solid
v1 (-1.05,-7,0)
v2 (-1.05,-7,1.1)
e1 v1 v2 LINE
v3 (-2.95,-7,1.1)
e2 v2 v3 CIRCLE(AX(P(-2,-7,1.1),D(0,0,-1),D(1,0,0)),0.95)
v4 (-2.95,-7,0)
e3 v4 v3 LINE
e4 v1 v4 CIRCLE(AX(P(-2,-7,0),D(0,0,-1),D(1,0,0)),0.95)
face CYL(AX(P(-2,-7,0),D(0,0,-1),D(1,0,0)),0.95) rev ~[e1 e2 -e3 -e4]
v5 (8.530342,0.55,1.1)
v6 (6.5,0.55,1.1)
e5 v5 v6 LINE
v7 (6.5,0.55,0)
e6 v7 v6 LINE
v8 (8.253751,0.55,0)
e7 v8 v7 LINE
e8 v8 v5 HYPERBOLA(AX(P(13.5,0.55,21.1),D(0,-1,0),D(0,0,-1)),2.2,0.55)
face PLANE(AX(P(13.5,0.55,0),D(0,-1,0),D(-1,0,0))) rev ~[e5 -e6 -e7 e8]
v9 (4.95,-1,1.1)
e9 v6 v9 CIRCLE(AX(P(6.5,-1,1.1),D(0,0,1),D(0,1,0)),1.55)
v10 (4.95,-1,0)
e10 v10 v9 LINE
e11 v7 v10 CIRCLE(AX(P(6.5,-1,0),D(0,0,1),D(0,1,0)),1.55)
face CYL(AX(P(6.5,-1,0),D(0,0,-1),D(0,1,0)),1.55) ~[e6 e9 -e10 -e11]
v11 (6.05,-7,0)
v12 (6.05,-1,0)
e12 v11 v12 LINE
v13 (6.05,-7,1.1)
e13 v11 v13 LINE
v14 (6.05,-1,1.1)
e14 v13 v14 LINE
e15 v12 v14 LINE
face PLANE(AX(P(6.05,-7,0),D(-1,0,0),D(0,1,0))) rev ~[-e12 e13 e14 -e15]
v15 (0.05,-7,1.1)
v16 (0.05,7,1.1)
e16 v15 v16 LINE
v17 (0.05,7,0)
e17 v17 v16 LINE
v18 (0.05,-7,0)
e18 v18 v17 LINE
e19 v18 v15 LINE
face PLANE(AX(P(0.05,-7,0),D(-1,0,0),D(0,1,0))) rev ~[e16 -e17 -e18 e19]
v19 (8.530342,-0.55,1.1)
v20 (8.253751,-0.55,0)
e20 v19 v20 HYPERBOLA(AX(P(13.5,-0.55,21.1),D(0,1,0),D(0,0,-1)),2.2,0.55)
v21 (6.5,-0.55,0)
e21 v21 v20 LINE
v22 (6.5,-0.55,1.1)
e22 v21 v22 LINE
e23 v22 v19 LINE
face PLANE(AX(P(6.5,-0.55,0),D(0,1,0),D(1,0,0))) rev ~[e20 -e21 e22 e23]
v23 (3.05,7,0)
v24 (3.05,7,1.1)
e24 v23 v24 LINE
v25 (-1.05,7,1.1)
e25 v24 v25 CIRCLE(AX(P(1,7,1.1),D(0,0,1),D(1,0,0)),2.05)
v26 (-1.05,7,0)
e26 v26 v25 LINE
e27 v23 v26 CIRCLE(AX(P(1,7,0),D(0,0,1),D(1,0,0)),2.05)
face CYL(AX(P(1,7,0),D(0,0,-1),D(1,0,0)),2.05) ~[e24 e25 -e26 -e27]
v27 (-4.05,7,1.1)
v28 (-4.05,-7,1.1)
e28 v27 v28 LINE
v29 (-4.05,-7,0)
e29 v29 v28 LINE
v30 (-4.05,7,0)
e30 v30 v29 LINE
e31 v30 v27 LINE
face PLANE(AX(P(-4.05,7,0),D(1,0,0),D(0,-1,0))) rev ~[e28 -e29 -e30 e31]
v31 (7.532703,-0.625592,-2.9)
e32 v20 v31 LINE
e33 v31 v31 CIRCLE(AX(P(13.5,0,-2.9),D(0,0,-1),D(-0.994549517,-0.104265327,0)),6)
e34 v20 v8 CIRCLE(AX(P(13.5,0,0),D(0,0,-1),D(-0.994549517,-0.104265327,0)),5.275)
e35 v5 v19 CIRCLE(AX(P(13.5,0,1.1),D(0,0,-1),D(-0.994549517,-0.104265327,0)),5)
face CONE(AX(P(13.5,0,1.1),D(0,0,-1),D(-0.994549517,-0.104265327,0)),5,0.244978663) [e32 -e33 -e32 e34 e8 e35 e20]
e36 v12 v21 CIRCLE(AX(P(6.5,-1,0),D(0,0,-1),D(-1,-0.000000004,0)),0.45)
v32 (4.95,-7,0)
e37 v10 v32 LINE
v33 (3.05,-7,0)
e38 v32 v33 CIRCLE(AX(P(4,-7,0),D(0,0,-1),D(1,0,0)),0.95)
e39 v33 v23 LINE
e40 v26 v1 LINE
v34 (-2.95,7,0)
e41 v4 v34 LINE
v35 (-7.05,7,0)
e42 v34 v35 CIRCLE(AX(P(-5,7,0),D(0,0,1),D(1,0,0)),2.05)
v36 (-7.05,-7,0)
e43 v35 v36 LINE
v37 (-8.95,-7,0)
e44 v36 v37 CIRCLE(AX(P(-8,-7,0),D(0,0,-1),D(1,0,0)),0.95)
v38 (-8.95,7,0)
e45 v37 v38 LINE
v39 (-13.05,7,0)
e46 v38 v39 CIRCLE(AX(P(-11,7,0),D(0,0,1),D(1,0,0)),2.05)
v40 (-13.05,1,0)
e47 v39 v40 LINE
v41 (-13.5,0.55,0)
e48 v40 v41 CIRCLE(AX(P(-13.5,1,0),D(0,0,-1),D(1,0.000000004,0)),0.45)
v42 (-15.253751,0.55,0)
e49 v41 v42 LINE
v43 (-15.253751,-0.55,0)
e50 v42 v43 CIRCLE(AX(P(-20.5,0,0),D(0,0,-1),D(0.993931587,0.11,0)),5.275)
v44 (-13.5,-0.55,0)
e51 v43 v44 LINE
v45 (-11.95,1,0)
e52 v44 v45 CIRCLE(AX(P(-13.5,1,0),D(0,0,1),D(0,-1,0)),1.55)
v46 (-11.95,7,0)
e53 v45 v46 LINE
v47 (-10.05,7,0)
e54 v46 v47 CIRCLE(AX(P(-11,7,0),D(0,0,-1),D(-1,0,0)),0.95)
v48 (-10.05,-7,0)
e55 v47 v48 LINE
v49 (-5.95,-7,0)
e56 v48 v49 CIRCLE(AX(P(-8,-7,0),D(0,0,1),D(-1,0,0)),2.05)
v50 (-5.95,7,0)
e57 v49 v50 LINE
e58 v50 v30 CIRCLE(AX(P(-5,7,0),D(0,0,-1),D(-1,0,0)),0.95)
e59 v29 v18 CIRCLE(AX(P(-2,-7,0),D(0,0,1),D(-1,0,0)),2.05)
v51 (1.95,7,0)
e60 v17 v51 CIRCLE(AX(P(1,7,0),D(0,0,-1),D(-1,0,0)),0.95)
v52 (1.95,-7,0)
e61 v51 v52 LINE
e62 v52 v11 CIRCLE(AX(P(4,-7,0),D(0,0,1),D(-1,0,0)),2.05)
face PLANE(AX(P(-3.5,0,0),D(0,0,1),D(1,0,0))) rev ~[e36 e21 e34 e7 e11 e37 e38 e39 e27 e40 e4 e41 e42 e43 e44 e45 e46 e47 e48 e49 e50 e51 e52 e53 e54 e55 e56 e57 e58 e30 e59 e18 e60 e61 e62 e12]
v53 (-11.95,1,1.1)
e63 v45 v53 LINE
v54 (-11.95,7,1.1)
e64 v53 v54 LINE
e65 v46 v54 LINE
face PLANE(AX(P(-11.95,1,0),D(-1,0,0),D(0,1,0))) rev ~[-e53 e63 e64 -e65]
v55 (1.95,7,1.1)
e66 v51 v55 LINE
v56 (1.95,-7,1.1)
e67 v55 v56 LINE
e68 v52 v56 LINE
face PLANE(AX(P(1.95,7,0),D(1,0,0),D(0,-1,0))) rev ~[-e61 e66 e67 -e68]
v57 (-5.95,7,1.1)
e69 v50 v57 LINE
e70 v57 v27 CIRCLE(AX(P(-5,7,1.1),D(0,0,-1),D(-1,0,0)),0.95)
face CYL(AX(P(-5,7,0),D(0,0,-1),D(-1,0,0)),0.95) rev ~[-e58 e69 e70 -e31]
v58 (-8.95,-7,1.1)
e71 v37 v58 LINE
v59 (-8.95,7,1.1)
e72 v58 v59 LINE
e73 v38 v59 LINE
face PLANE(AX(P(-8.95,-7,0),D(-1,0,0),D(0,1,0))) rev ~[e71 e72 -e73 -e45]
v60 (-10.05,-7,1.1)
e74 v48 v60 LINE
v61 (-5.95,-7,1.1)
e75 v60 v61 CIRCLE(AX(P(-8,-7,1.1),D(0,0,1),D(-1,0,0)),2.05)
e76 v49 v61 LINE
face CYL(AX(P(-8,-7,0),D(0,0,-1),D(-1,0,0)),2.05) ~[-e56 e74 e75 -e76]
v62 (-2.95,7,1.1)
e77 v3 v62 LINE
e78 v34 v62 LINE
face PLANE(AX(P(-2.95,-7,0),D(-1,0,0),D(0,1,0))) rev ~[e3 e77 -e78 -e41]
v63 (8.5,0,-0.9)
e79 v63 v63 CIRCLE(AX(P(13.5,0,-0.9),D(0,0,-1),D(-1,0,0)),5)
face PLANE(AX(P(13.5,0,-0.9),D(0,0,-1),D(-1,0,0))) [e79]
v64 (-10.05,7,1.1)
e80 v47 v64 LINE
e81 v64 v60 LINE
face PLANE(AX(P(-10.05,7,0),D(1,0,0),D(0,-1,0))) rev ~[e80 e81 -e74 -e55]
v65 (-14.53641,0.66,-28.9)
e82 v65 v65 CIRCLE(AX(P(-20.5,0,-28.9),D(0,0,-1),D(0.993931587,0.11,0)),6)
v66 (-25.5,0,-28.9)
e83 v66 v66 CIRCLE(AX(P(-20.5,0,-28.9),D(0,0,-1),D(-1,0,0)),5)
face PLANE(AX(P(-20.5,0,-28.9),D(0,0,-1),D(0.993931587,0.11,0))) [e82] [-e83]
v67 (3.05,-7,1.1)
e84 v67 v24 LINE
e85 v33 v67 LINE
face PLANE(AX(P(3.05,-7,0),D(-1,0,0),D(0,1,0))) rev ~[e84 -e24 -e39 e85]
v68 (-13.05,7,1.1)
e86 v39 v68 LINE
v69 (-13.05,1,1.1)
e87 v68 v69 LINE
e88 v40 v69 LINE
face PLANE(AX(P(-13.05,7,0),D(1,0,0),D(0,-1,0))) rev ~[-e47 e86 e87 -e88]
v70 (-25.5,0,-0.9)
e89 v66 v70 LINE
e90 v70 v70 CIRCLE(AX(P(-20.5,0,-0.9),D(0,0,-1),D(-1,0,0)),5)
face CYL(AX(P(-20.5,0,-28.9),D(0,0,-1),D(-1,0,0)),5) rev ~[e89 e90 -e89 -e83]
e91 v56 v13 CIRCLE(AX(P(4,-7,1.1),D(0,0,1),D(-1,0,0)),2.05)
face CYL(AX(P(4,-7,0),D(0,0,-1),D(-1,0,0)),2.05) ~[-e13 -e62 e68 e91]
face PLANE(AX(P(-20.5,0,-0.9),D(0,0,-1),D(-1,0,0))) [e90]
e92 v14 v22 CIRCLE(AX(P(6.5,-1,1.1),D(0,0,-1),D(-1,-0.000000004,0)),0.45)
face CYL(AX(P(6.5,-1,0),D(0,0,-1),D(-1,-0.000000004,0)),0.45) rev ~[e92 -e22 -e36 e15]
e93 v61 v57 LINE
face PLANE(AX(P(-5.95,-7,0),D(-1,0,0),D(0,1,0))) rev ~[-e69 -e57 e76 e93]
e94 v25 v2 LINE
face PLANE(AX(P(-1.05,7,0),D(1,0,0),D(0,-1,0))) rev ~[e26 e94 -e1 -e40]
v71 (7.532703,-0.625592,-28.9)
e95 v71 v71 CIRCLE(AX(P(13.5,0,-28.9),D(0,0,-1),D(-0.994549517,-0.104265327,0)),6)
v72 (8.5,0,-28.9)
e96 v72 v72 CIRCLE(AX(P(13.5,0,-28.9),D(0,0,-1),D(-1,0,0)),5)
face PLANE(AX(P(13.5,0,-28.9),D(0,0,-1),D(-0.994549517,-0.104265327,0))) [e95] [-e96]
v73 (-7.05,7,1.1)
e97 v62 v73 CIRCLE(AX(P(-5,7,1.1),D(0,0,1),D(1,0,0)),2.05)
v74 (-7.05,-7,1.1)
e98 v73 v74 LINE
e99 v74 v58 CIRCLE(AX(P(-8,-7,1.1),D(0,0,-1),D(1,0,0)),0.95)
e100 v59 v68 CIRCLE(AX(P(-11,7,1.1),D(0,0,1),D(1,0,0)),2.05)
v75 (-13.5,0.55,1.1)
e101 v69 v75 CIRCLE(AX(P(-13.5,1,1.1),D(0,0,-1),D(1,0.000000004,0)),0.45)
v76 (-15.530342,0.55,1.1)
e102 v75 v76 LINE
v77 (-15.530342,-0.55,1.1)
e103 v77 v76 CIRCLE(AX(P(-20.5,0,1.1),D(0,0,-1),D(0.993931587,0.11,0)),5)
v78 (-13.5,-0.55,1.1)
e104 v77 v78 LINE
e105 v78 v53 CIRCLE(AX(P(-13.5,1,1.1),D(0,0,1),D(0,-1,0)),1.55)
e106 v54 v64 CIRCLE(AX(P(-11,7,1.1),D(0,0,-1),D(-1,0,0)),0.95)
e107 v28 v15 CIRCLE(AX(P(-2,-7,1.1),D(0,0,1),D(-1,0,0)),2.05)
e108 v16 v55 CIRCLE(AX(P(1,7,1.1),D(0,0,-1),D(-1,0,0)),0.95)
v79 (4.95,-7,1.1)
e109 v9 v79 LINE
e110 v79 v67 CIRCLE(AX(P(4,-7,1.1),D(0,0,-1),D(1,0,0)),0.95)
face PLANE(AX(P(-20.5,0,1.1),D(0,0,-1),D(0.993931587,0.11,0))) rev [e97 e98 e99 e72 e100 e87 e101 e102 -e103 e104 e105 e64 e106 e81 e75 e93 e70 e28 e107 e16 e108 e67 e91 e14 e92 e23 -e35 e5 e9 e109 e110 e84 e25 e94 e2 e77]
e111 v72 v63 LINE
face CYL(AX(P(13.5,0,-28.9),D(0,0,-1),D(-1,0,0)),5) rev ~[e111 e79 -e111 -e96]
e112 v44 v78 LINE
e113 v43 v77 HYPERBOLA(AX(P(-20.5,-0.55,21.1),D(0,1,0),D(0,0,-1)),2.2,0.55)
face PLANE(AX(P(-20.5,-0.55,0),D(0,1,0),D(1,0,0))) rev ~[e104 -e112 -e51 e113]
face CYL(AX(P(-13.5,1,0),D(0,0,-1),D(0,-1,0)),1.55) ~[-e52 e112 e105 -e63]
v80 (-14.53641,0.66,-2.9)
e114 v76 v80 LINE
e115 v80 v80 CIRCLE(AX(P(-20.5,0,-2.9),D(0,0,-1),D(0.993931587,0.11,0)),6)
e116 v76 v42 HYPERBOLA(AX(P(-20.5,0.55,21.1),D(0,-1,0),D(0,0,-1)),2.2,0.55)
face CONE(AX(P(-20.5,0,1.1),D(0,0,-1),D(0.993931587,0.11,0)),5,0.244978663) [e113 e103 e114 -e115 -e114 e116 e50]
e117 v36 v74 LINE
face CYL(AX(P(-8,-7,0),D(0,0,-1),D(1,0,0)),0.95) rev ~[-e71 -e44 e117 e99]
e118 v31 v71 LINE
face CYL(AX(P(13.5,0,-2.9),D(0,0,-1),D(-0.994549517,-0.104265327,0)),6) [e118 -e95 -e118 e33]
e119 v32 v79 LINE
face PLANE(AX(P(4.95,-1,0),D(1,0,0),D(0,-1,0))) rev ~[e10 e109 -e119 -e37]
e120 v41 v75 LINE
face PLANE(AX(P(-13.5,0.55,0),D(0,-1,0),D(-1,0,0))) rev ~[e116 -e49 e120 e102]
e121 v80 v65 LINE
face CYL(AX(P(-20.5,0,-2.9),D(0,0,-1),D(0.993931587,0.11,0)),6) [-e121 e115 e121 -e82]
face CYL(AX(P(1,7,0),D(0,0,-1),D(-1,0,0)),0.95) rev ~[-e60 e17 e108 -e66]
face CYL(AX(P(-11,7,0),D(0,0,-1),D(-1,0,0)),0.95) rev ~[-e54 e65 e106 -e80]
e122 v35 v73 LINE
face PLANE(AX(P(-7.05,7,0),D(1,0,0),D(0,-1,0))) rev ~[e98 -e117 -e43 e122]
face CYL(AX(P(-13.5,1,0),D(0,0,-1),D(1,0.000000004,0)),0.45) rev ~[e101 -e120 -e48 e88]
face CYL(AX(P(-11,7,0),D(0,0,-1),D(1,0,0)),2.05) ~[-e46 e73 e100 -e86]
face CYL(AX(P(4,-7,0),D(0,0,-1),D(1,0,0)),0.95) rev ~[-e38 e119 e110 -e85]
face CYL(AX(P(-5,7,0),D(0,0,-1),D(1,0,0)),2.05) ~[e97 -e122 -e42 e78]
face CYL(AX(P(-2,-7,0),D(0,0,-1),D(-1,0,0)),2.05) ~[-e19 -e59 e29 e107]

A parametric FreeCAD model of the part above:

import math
import FreeCAD as App
import Part
import Sketcher

V = App.Vector


def add_polygon(sketch, points):
    """Adds a closed chain of lines whose ends are joined by coincident constraints."""
    first, n = sketch.GeometryCount, len(points)
    for a, b in zip(points, points[1:] + points[:1]):
        sketch.addGeometry(Part.LineSegment(App.Vector(*a, 0), App.Vector(*b, 0)), False)
    for i in range(n):
        sketch.addConstraint(Sketcher.Constraint("Coincident", first + i, 2, first + (i + 1) % n, 1))

doc = App.newDocument("Part")
body = doc.addObject("PartDesign::Body", "Body")

sketch1 = body.newObject("Sketcher::SketchObject", "Sketch")
sketch1.AttachmentSupport = (doc.getObject("XY_Plane"), [""])
sketch1.MapMode = "FlatFace"
sketch1.addGeometry([
    Part.LineSegment(V(-20.5, -0.55, 0), V(-13.5, -0.55, 0)),
    Part.ArcOfCircle(Part.Circle(V(-13.5, 1, 0), V(0, 0, 1), 1.55), math.radians(-90), math.radians(0)),
    Part.LineSegment(V(-11.95, 1, 0), V(-11.95, 7, 0)),
    Part.ArcOfCircle(Part.Circle(V(-11, 7, 0), V(0, 0, 1), 0.95), math.radians(0), math.radians(180)),
    Part.LineSegment(V(-10.05, 7, 0), V(-10.05, -7, 0)),
    Part.ArcOfCircle(Part.Circle(V(-8, -7, 0), V(0, 0, 1), 2.05), math.radians(180), math.radians(360)),
    Part.LineSegment(V(-5.95, -7, 0), V(-5.95, 7, 0)),
    Part.ArcOfCircle(Part.Circle(V(-5, 7, 0), V(0, 0, 1), 0.95), math.radians(0), math.radians(180)),
    Part.LineSegment(V(-4.05, 7, 0), V(-4.05, -7, 0)),
    Part.ArcOfCircle(Part.Circle(V(-2, -7, 0), V(0, 0, 1), 2.05), math.radians(180), math.radians(360)),
    Part.LineSegment(V(0.05, -7, 0), V(0.05, 7, 0)),
    Part.ArcOfCircle(Part.Circle(V(1, 7, 0), V(0, 0, 1), 0.95), math.radians(0), math.radians(180)),
    Part.LineSegment(V(1.95, 7, 0), V(1.95, -7, 0)),
    Part.ArcOfCircle(Part.Circle(V(4, -7, 0), V(0, 0, 1), 2.05), math.radians(180), math.radians(360)),
    Part.LineSegment(V(6.05, -7, 0), V(6.05, -1, 0)),
    Part.ArcOfCircle(Part.Circle(V(6.5, -1, 0), V(0, 0, 1), 0.45), math.radians(90), math.radians(180)),
    Part.LineSegment(V(6.5, -0.55, 0), V(13.5, -0.55, 0)),
    Part.ArcOfCircle(Part.Circle(V(13.5, 0, 0), V(0, 0, 1), 0.55), math.radians(-90), math.radians(90)),
    Part.LineSegment(V(13.5, 0.55, 0), V(6.5, 0.55, 0)),
    Part.ArcOfCircle(Part.Circle(V(6.5, -1, 0), V(0, 0, 1), 1.55), math.radians(90), math.radians(180)),
    Part.LineSegment(V(4.95, -1, 0), V(4.95, -7, 0)),
    Part.ArcOfCircle(Part.Circle(V(4, -7, 0), V(0, 0, 1), 0.95), math.radians(180), math.radians(360)),
    Part.LineSegment(V(3.05, -7, 0), V(3.05, 7, 0)),
    Part.ArcOfCircle(Part.Circle(V(1, 7, 0), V(0, 0, 1), 2.05), math.radians(0), math.radians(180)),
    Part.LineSegment(V(-1.05, 7, 0), V(-1.05, -7, 0)),
    Part.ArcOfCircle(Part.Circle(V(-2, -7, 0), V(0, 0, 1), 0.95), math.radians(180), math.radians(360)),
    Part.LineSegment(V(-2.95, -7, 0), V(-2.95, 7, 0)),
    Part.ArcOfCircle(Part.Circle(V(-5, 7, 0), V(0, 0, 1), 2.05), math.radians(0), math.radians(180)),
    Part.LineSegment(V(-7.05, 7, 0), V(-7.05, -7, 0)),
    Part.ArcOfCircle(Part.Circle(V(-8, -7, 0), V(0, 0, 1), 0.95), math.radians(180), math.radians(360)),
    Part.LineSegment(V(-8.95, -7, 0), V(-8.95, 7, 0)),
    Part.ArcOfCircle(Part.Circle(V(-11, 7, 0), V(0, 0, 1), 2.05), math.radians(0), math.radians(180)),
    Part.LineSegment(V(-13.05, 7, 0), V(-13.05, 1, 0)),
    Part.ArcOfCircle(Part.Circle(V(-13.5, 1, 0), V(0, 0, 1), 0.45), math.radians(-90), math.radians(0)),
    Part.LineSegment(V(-13.5, 0.55, 0), V(-20.5, 0.55, 0)),
    Part.ArcOfCircle(Part.Circle(V(-20.5, 0, 0), V(0, 0, 1), 0.55), math.radians(90), math.radians(270)),
], False)
sketch1.addConstraint([
    Sketcher.Constraint("Tangent", 0, 2, 1, 1),
    Sketcher.Constraint("Tangent", 1, 2, 2, 1),
    Sketcher.Constraint("Tangent", 2, 2, 3, 2),
    Sketcher.Constraint("Tangent", 3, 1, 4, 1),
    Sketcher.Constraint("Tangent", 4, 2, 5, 1),
    Sketcher.Constraint("Tangent", 5, 2, 6, 1),
    Sketcher.Constraint("Tangent", 6, 2, 7, 2),
    Sketcher.Constraint("Tangent", 7, 1, 8, 1),
    Sketcher.Constraint("Tangent", 8, 2, 9, 1),
    Sketcher.Constraint("Tangent", 9, 2, 10, 1),
    Sketcher.Constraint("Tangent", 10, 2, 11, 2),
    Sketcher.Constraint("Tangent", 11, 1, 12, 1),
    Sketcher.Constraint("Tangent", 12, 2, 13, 1),
    Sketcher.Constraint("Tangent", 13, 2, 14, 1),
    Sketcher.Constraint("Tangent", 14, 2, 15, 2),
    Sketcher.Constraint("Tangent", 15, 1, 16, 1),
    Sketcher.Constraint("Tangent", 16, 2, 17, 1),
    Sketcher.Constraint("Tangent", 17, 2, 18, 1),
    Sketcher.Constraint("Tangent", 18, 2, 19, 1),
    Sketcher.Constraint("Tangent", 19, 2, 20, 1),
    Sketcher.Constraint("Tangent", 20, 2, 21, 2),
    Sketcher.Constraint("Tangent", 21, 1, 22, 1),
    Sketcher.Constraint("Tangent", 22, 2, 23, 1),
    Sketcher.Constraint("Tangent", 23, 2, 24, 1),
    Sketcher.Constraint("Tangent", 24, 2, 25, 2),
    Sketcher.Constraint("Tangent", 25, 1, 26, 1),
    Sketcher.Constraint("Tangent", 26, 2, 27, 1),
    Sketcher.Constraint("Tangent", 27, 2, 28, 1),
    Sketcher.Constraint("Tangent", 28, 2, 29, 2),
    Sketcher.Constraint("Tangent", 29, 1, 30, 1),
    Sketcher.Constraint("Tangent", 30, 2, 31, 1),
    Sketcher.Constraint("Tangent", 31, 2, 32, 1),
    Sketcher.Constraint("Tangent", 32, 2, 33, 2),
    Sketcher.Constraint("Tangent", 33, 1, 34, 1),
    Sketcher.Constraint("Tangent", 34, 2, 35, 1),
    Sketcher.Constraint("Tangent", 35, 2, 0, 1),
    Sketcher.Constraint("Horizontal", 0),
    Sketcher.Constraint("Vertical", 2),
    Sketcher.Constraint("Vertical", 4),
    Sketcher.Constraint("Vertical", 6),
    Sketcher.Constraint("Vertical", 8),
    Sketcher.Constraint("Vertical", 10),
    Sketcher.Constraint("Vertical", 12),
    Sketcher.Constraint("Vertical", 14),
    Sketcher.Constraint("Horizontal", 16),
    Sketcher.Constraint("Horizontal", 18),
    Sketcher.Constraint("Vertical", 20),
    Sketcher.Constraint("Vertical", 22),
    Sketcher.Constraint("Vertical", 24),
    Sketcher.Constraint("Vertical", 26),
    Sketcher.Constraint("Vertical", 28),
    Sketcher.Constraint("Vertical", 30),
    Sketcher.Constraint("Vertical", 32),
    Sketcher.Constraint("Horizontal", 34),
    Sketcher.Constraint("Coincident", 19, 3, 15, 3),
    Sketcher.Constraint("Coincident", 21, 3, 13, 3),
    Sketcher.Constraint("Coincident", 23, 3, 11, 3),
    Sketcher.Constraint("Coincident", 25, 3, 9, 3),
    Sketcher.Constraint("Coincident", 27, 3, 7, 3),
    Sketcher.Constraint("Coincident", 29, 3, 5, 3),
    Sketcher.Constraint("Coincident", 31, 3, 3, 3),
    Sketcher.Constraint("Coincident", 33, 3, 1, 3),
    Sketcher.Constraint("Equal", 3, 7),
    Sketcher.Constraint("Equal", 5, 9),
    Sketcher.Constraint("Equal", 7, 11),
    Sketcher.Constraint("Equal", 9, 13),
    Sketcher.Constraint("Equal", 1, 19),
    Sketcher.Constraint("Equal", 11, 21),
    Sketcher.Constraint("Symmetric", 0, 2, 17, 2, -1, 1),
    Sketcher.Constraint("PointOnObject", 17, 3, -1),
    Sketcher.Constraint("Horizontal", 3, 3, 7, 3),
    Sketcher.Constraint("Horizontal", 5, 3, 9, 3),
    Sketcher.Constraint("Horizontal", 7, 3, 11, 3),
    Sketcher.Constraint("Horizontal", 9, 3, 13, 3),
    Sketcher.Constraint("Equal", 0, 16),
    Sketcher.Constraint("Equal", 2, 14),
    Sketcher.Constraint("DistanceX", 0, 1, 0, 2, 7.0),
    Sketcher.Constraint("DistanceY", 2, 1, 2, 2, 6.0),
    Sketcher.Constraint("DistanceY", 4, 2, 4, 1, 14.0),
    Sketcher.Constraint("Radius", 1, 1.55),
    Sketcher.Constraint("Radius", 3, 0.95),
])
pad1 = body.newObject("PartDesign::Pad", "Pad")
pad1.Profile = sketch1
pad1.Length = 1.1

sketch2 = body.newObject("Sketcher::SketchObject", "Sketch001")
sketch2.AttachmentSupport = (doc.getObject("XZ_Plane"), [""])
sketch2.MapMode = "FlatFace"
add_polygon(sketch2, [(-20.5, 1.1), (-25.5, 1.1), (-26.5, -2.9), (-26.5, -28.9), (-20.5, -28.9)])
sketch2.addGeometry(Part.LineSegment(V(-20.5, 1.1, 0), V(-20.5, -28.9, 0)), True)
sketch2.addConstraint([
    Sketcher.Constraint("Horizontal", 0),
    Sketcher.Constraint("Vertical", 2),
    Sketcher.Constraint("Horizontal", 3),
    Sketcher.Constraint("Vertical", 4),
    Sketcher.Constraint("Vertical", 5),
    Sketcher.Constraint("Coincident", 5, 1, 4, 2),
    Sketcher.Constraint("Horizontal", 2, 2, 5, 2),
    Sketcher.Constraint("DistanceX", 0, 2, 0, 1, 5.0),
    Sketcher.Constraint("DistanceX", 3, 1, 3, 2, 6.0),
    Sketcher.Constraint("DistanceY", 2, 2, 2, 1, 26.0),
    Sketcher.Constraint("DistanceY", 4, 1, 4, 2, 30.0),
    Sketcher.Constraint("DistanceX", 0, 2, -1, 1, 25.5),
    Sketcher.Constraint("DistanceY", -1, 1, 0, 2, 1.1),
])
revolution = body.newObject("PartDesign::Revolution", "Revolution")
revolution.Profile = sketch2
revolution.ReferenceAxis = (sketch2, ["Axis0"])
revolution.Angle = 360

sketch3 = body.newObject("Sketcher::SketchObject", "Sketch002")
sketch3.AttachmentSupport = (doc.getObject("XZ_Plane"), [""])
sketch3.MapMode = "FlatFace"
add_polygon(sketch3, [(18.5, 1.1), (13.5, 1.1), (13.5, -28.9), (19.5, -28.9), (19.5, -2.9)])
sketch3.addGeometry(Part.LineSegment(V(13.5, 1.1, 0), V(13.5, -28.9, 0)), True)
sketch3.addConstraint([
    Sketcher.Constraint("Horizontal", 0),
    Sketcher.Constraint("Vertical", 1),
    Sketcher.Constraint("Horizontal", 2),
    Sketcher.Constraint("Vertical", 3),
    Sketcher.Constraint("Vertical", 5),
    Sketcher.Constraint("Coincident", 5, 1, 0, 2),
    Sketcher.Constraint("Horizontal", 2, 2, 5, 2),
    Sketcher.Constraint("DistanceX", 0, 2, 0, 1, 5.0),
    Sketcher.Constraint("DistanceX", 2, 1, 2, 2, 6.0),
    Sketcher.Constraint("DistanceY", 1, 2, 1, 1, 30.0),
    Sketcher.Constraint("DistanceY", 3, 1, 3, 2, 26.0),
    Sketcher.Constraint("DistanceX", -1, 1, 0, 2, 13.5),
    Sketcher.Constraint("DistanceY", -1, 1, 0, 2, 1.1),
])
revolution2 = body.newObject("PartDesign::Revolution", "Revolution001")
revolution2.Profile = sketch3
revolution2.ReferenceAxis = (sketch3, ["Axis0"])
revolution2.Angle = 360

sketch4 = body.newObject("Sketcher::SketchObject", "Sketch003")
sketch4.AttachmentSupport = (doc.getObject("XY_Plane"), [""])
sketch4.MapMode = "FlatFace"
sketch4.AttachmentOffset = App.Placement(V(0, 0, -28.9), App.Rotation())
sketch4.addGeometry([
    Part.Circle(V(14, 0, 0), V(0, 0, 1), 5),
    Part.Circle(V(-20, 0, 0), V(0, 0, 1), 5),
], False)
sketch4.addConstraint([
    Sketcher.Constraint("Equal", 0, 1),
    Sketcher.Constraint("PointOnObject", 0, 3, -1),
    Sketcher.Constraint("PointOnObject", 1, 3, -1),
    Sketcher.Constraint("Diameter", 0, 10.0),
    Sketcher.Constraint("DistanceX", 1, 3, 0, 3, 34.0),
    Sketcher.Constraint("DistanceX", -1, 1, 0, 3, 13.5),
])
pocket1 = body.newObject("PartDesign::Pocket", "Pocket")
pocket1.Profile = sketch4
pocket1.Length = 28
pocket1.Reversed = True

doc.recompute()
